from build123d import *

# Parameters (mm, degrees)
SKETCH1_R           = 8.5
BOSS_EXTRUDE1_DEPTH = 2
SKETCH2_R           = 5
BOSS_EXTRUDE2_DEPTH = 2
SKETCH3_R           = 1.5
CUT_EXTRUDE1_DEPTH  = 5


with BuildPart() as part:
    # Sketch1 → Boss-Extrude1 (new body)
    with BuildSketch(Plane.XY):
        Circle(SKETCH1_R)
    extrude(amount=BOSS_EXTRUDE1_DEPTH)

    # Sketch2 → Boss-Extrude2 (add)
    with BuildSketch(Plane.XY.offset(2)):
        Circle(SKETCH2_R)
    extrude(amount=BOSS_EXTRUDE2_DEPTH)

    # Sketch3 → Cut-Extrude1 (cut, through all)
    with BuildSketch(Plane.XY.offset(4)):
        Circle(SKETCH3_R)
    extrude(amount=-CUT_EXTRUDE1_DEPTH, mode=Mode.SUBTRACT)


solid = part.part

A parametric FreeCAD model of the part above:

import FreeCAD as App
import Part
import Sketcher
Q = App.Units.Quantity

doc = App.newDocument("Part")
body = doc.addObject("PartDesign::Body", "Body")

# Sketch on XY plane
sketch1 = body.newObject("Sketcher::SketchObject", "Sketch")
sketch1.AttachmentSupport = (doc.getObject("XY_Plane"), [""])
sketch1.MapMode = "FlatFace"
sketch1.addGeometry(Part.Circle(App.Vector(0, 0, 0), App.Vector(0, 0, 1), 8), False)
sketch1.addConstraint([
    Sketcher.Constraint("Coincident", 0, 3, -1, 1),
    Sketcher.Constraint("Diameter", 0, Q("17 mm")),
])
pad1 = body.newObject("PartDesign::Pad", "Pad")
pad1.Profile = sketch1
pad1.Length = 2

# Sketch on XY plane
sketch2 = body.newObject("Sketcher::SketchObject", "Sketch001")
sketch2.AttachmentSupport = (doc.getObject("XY_Plane"), [""])
sketch2.MapMode = "FlatFace"
sketch2.AttachmentOffset = App.Placement(App.Vector(0, 0, 2), App.Rotation())
sketch2.addGeometry(Part.Circle(App.Vector(0, 0, 0), App.Vector(0, 0, 1), 5), False)
sketch2.addConstraint([
    Sketcher.Constraint("Coincident", 0, 3, -1, 1),
    Sketcher.Constraint("Diameter", 0, Q("10 mm")),
])
pad2 = body.newObject("PartDesign::Pad", "Pad001")
pad2.Profile = sketch2
pad2.Length = 2

# Sketch on XY plane
sketch3 = body.newObject("Sketcher::SketchObject", "Sketch002")
sketch3.AttachmentSupport = (doc.getObject("XY_Plane"), [""])
sketch3.MapMode = "FlatFace"
sketch3.AttachmentOffset = App.Placement(App.Vector(0, 0, 4), App.Rotation())
sketch3.addGeometry(Part.Circle(App.Vector(0, 0, 0), App.Vector(0, 0, 1), 1.5), False)
sketch3.addConstraint([
    Sketcher.Constraint("Coincident", 0, 3, -1, 1),
    Sketcher.Constraint("Diameter", 0, Q("3 mm")),
])
pocket1 = body.newObject("PartDesign::Pocket", "Pocket")
pocket1.Profile = sketch3
pocket1.Type = "ThroughAll"

doc.recompute()
